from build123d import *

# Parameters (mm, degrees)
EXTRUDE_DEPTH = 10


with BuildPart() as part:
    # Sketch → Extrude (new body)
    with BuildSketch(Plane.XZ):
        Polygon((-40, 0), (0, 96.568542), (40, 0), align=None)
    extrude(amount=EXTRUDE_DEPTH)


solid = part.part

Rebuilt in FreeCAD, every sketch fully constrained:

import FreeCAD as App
import Part
import Sketcher

V = App.Vector
Q = App.Units.Quantity


def add_polygon(sketch, points):
    """Adds a closed chain of lines whose ends are joined by coincident constraints."""
    first, n = sketch.GeometryCount, len(points)
    for a, b in zip(points, points[1:] + points[:1]):
        sketch.addGeometry(Part.LineSegment(App.Vector(*a, 0), App.Vector(*b, 0)), False)
    for i in range(n):
        sketch.addConstraint(Sketcher.Constraint("Coincident", first + i, 2, first + (i + 1) % n, 1))

doc = App.newDocument("Part")
body = doc.addObject("PartDesign::Body", "Body")

# Sketch on XZ plane
sketch1 = body.newObject("Sketcher::SketchObject", "Sketch")
sketch1.AttachmentSupport = (doc.getObject("XZ_Plane"), [""])
sketch1.MapMode = "FlatFace"
add_polygon(sketch1, [(0, 96.568542), (-40, 0), (40, 0)])  # lines 0-2
sketch1.addConstraint([
    Sketcher.Constraint("Horizontal", 1),
    Sketcher.Constraint("Symmetric", 0, 2, 1, 2, -1, 1),
    Sketcher.Constraint("PointOnObject", 2, 2, -2),
    Sketcher.Constraint("DistanceX", 1, 1, 1, 2, Q("80 mm")),
    Sketcher.Constraint("Angle", 0, Q("-112.5 deg")),
])
pad1 = body.newObject("PartDesign::Pad", "Pad")
pad1.Profile = sketch1
pad1.Length = 10

doc.recompute()
